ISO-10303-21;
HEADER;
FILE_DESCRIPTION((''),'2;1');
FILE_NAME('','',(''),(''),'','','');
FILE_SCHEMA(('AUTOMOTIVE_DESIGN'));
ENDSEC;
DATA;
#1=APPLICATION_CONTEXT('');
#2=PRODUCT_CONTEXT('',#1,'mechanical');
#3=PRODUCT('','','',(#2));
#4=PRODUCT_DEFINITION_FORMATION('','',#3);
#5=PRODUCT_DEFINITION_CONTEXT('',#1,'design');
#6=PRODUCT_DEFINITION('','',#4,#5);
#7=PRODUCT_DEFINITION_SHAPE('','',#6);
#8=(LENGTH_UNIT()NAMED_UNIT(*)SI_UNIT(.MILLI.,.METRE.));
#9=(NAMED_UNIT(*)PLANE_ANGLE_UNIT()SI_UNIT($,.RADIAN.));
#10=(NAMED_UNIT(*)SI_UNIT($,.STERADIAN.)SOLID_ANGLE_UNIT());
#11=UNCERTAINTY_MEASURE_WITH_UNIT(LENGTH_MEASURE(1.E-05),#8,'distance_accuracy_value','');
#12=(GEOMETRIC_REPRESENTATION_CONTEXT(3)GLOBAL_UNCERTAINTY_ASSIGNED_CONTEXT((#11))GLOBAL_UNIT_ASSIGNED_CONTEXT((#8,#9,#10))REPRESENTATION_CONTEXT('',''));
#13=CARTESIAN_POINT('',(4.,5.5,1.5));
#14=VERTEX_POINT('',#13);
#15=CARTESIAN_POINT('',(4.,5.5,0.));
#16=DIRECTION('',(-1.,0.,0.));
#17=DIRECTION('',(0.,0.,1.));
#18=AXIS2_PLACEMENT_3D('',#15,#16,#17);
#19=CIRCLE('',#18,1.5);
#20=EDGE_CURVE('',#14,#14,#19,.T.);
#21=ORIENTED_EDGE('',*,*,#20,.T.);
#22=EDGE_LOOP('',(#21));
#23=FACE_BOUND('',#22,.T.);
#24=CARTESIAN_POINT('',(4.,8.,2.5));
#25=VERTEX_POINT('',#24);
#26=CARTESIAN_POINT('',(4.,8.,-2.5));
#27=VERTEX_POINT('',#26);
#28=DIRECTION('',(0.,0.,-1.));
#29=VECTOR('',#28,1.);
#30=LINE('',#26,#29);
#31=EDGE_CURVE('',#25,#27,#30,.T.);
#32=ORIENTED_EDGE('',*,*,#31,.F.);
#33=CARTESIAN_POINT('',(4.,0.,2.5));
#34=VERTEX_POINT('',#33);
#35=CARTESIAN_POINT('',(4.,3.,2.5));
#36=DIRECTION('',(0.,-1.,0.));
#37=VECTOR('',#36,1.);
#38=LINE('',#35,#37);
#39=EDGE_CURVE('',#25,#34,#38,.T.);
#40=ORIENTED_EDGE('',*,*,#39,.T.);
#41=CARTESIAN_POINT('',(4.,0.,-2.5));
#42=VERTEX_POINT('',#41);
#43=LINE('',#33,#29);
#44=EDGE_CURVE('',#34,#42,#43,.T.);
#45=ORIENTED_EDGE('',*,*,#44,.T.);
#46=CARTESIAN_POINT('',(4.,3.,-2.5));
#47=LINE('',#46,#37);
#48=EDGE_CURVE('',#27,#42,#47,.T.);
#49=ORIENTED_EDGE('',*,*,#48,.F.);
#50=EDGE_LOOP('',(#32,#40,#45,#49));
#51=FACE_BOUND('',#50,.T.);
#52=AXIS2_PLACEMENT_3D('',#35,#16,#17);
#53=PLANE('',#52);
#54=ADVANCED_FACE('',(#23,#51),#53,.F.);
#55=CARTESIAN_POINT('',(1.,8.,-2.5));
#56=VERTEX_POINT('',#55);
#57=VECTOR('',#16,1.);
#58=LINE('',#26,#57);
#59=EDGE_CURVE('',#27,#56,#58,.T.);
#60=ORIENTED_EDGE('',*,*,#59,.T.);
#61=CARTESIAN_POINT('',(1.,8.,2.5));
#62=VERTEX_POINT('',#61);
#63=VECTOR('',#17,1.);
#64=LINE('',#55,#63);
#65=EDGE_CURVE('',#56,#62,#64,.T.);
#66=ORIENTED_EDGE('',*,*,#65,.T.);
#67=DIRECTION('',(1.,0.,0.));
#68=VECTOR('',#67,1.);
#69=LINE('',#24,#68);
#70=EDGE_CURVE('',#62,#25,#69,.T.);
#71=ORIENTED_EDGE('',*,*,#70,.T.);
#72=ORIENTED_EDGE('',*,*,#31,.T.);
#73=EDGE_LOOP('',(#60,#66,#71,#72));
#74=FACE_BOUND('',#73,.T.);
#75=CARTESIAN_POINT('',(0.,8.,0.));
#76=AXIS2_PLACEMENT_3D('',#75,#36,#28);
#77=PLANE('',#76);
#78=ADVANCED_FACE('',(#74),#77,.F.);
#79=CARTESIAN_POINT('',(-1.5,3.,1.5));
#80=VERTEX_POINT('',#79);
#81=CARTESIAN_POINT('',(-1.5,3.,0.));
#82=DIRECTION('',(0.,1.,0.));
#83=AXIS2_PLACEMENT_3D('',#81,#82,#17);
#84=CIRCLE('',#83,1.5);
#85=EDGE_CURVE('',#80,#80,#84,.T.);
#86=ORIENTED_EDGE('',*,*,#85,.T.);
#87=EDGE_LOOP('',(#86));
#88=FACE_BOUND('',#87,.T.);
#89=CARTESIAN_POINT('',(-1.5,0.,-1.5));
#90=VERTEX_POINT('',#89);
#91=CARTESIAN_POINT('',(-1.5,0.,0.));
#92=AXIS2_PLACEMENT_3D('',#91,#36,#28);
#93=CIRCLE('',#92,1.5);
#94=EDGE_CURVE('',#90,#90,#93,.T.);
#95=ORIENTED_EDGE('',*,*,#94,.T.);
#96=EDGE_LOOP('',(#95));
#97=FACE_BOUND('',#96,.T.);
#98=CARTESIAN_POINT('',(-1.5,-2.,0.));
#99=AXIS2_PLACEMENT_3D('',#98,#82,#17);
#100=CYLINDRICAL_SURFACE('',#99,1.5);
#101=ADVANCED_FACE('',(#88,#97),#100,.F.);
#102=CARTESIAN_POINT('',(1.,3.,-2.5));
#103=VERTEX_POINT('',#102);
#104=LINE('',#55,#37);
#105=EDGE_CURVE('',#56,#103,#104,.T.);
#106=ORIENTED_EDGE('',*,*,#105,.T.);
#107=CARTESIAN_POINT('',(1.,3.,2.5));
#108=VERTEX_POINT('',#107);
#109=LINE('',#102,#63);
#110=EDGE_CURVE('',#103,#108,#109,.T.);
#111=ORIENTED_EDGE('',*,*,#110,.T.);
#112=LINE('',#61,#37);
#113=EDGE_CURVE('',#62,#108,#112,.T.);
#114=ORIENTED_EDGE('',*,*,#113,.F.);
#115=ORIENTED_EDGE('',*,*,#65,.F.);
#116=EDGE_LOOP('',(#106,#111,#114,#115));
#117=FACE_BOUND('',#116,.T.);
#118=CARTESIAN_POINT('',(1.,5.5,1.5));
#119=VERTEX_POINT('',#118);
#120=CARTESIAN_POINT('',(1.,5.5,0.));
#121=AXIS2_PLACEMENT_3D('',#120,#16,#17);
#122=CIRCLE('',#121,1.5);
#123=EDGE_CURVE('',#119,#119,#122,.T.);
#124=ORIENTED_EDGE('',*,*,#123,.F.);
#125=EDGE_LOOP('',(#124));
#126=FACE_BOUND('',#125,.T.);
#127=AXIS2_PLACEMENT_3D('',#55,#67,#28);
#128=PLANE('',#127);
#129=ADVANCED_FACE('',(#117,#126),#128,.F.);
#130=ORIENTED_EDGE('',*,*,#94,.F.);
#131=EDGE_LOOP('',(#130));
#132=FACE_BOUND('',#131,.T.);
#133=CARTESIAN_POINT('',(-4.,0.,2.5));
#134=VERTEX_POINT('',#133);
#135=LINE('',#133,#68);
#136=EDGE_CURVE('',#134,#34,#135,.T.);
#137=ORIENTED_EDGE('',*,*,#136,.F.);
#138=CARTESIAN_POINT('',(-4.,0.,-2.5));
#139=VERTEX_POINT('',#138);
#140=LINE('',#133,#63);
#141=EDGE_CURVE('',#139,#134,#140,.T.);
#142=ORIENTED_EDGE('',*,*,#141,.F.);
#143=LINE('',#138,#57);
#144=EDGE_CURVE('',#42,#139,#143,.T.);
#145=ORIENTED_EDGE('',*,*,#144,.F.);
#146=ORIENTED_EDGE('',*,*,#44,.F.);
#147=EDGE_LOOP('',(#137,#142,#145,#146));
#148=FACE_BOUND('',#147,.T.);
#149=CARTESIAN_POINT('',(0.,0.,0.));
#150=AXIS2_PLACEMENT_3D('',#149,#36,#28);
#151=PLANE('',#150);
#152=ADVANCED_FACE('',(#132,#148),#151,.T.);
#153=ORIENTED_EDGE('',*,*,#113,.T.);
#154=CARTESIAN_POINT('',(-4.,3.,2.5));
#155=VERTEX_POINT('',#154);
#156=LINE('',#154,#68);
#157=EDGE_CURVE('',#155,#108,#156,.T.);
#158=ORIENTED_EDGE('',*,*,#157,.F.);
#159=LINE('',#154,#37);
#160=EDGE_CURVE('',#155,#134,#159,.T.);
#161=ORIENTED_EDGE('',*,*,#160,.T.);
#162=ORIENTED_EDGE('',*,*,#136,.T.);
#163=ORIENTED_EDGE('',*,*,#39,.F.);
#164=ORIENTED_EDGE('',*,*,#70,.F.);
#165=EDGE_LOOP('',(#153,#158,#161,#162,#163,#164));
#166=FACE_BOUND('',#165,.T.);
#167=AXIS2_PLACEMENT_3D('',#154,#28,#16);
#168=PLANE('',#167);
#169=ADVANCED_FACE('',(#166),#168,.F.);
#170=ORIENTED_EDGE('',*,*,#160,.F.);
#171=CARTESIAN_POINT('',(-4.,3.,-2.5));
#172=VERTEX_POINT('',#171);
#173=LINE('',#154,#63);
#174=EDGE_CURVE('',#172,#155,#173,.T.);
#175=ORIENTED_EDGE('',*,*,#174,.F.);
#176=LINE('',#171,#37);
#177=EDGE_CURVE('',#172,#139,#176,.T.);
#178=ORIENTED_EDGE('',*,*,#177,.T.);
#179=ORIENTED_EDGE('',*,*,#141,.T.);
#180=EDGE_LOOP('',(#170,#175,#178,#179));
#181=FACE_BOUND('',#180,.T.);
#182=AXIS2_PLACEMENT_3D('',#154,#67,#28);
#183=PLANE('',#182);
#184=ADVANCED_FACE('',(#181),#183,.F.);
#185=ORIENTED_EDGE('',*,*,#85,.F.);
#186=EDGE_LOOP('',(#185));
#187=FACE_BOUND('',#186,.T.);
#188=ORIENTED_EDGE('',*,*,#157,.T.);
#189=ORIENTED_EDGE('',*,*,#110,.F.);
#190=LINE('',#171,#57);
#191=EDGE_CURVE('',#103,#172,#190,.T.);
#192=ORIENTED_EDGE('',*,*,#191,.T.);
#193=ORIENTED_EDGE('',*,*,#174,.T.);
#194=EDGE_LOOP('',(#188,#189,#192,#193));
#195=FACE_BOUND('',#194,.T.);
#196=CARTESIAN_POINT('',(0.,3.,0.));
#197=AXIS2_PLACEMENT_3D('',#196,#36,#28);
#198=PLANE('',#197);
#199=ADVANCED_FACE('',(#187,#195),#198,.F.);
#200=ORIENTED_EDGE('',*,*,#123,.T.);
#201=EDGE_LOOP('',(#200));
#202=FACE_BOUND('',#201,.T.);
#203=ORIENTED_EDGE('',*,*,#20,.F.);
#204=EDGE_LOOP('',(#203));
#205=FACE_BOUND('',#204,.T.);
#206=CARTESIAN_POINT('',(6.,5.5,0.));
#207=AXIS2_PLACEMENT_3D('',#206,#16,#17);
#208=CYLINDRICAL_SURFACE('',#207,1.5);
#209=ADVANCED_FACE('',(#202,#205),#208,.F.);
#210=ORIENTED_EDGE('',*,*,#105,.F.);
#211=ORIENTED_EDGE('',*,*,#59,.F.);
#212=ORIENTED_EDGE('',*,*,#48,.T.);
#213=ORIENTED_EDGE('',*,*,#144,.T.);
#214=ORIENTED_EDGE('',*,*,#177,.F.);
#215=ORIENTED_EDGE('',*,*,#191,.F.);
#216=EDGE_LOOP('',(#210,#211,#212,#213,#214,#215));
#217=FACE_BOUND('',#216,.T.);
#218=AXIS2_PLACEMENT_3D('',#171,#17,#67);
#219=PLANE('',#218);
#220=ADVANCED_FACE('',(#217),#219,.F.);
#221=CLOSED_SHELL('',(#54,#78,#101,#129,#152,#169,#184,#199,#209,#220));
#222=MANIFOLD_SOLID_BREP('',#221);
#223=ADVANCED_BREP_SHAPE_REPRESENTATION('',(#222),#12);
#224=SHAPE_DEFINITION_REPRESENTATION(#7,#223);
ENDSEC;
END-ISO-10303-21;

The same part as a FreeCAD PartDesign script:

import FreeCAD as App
import Part
import Sketcher

V = App.Vector
Q = App.Units.Quantity

doc = App.newDocument("Part")
body = doc.addObject("PartDesign::Body", "Body")

# Sketch on XZ plane
sketch1 = doc.addObject("Sketcher::SketchObject", "Sketch")
body.addObject(sketch1)
sketch1.AttachmentSupport = (doc.XZ_Plane, [""])
sketch1.MapMode = "FlatFace"
sketch1.addGeometry(Part.LineSegment(V(-4, -2, 0), V(-4, 2, 0)), False)
sketch1.addGeometry(Part.LineSegment(V(-4, 2, 0), V(4, 2, 0)), False)
sketch1.addGeometry(Part.LineSegment(V(4, 2, 0), V(4, -2, 0)), False)
sketch1.addGeometry(Part.LineSegment(V(4, -2, 0), V(-4, -2, 0)), False)
sketch1.addConstraint(Sketcher.Constraint("Coincident", 0, 2, 1, 1))
sketch1.addConstraint(Sketcher.Constraint("Coincident", 1, 2, 2, 1))
sketch1.addConstraint(Sketcher.Constraint("Coincident", 2, 2, 3, 1))
sketch1.addConstraint(Sketcher.Constraint("Coincident", 3, 2, 0, 1))
sketch1.addConstraint(Sketcher.Constraint("Vertical", 0))
sketch1.addConstraint(Sketcher.Constraint("Horizontal", 1))
sketch1.addConstraint(Sketcher.Constraint("Vertical", 2))
sketch1.addConstraint(Sketcher.Constraint("Horizontal", 3))
sketch1.addConstraint(Sketcher.Constraint("Symmetric", 0, 2, 2, 2, -1, 1))
sketch1.addConstraint(Sketcher.Constraint("DistanceX", 1, 1, 1, 2, Q("8 mm")))
sketch1.addConstraint(Sketcher.Constraint("DistanceY", 0, 1, 0, 2, Q("5 mm")))
pad1 = doc.addObject("PartDesign::Pad", "Pad")
body.addObject(pad1)
pad1.Profile = sketch1
pad1.Length = 3
pad1.Reversed = True

# Sketch on XZ plane
sketch2 = doc.addObject("Sketcher::SketchObject", "Sketch001")
body.addObject(sketch2)
sketch2.AttachmentSupport = (doc.XZ_Plane, [""])
sketch2.MapMode = "FlatFace"
sketch2.AttachmentOffset = App.Placement(V(0, 0, -3), App.Rotation())
sketch2.addGeometry(Part.LineSegment(V(1, -2.5, 0), V(1, 2.5, 0)), False)
sketch2.addGeometry(Part.LineSegment(V(1, 2.5, 0), V(4, 2.5, 0)), False)
sketch2.addGeometry(Part.LineSegment(V(4, 2.5, 0), V(4, -2.5, 0)), False)
sketch2.addGeometry(Part.LineSegment(V(4, -2.5, 0), V(1, -2.5, 0)), False)
sketch2.addConstraint(Sketcher.Constraint("Coincident", 0, 2, 1, 1))
sketch2.addConstraint(Sketcher.Constraint("Coincident", 1, 2, 2, 1))
sketch2.addConstraint(Sketcher.Constraint("Coincident", 2, 2, 3, 1))
sketch2.addConstraint(Sketcher.Constraint("Coincident", 3, 2, 0, 1))
sketch2.addConstraint(Sketcher.Constraint("Vertical", 0))
sketch2.addConstraint(Sketcher.Constraint("Horizontal", 1))
sketch2.addConstraint(Sketcher.Constraint("Vertical", 2))
sketch2.addConstraint(Sketcher.Constraint("Horizontal", 3))
sketch2.addConstraint(Sketcher.Constraint("DistanceX", 1, 1, 1, 2, Q("3 mm")))
sketch2.addConstraint(Sketcher.Constraint("DistanceY", 0, 1, 0, 2, Q("5 mm")))
sketch2.addConstraint(Sketcher.Constraint("DistanceX", -1, 1, 0, 2, Q("1 mm")))
sketch2.addConstraint(Sketcher.Constraint("DistanceY", -1, 1, 0, 2, Q("2.5 mm")))
pad2 = doc.addObject("PartDesign::Pad", "Pad001")
body.addObject(pad2)
pad2.Profile = sketch2
pad2.Length = 5
pad2.Reversed = True

# Sketch on XZ plane
sketch3 = doc.addObject("Sketcher::SketchObject", "Sketch002")
body.addObject(sketch3)
sketch3.AttachmentSupport = (doc.XZ_Plane, [""])
sketch3.MapMode = "FlatFace"
sketch3.AttachmentOffset = App.Placement(V(0, 0, -3), App.Rotation())
sketch3.addGeometry(Part.Circle(V(-1.5, 0, 0), V(0, 0, 1), 1.5), False)
sketch3.addConstraint(Sketcher.Constraint("PointOnObject", 0, 3, -1))
sketch3.addConstraint(Sketcher.Constraint("Diameter", 0, Q("3 mm")))
sketch3.addConstraint(Sketcher.Constraint("DistanceX", 0, 3, -1, 1, Q("1.5 mm")))
pocket1 = doc.addObject("PartDesign::Pocket", "Pocket")
body.addObject(pocket1)
pocket1.Profile = sketch3
pocket1.Length = 5
pocket1.Reversed = True

# Sketch on YZ plane
sketch4 = doc.addObject("Sketcher::SketchObject", "Sketch003")
body.addObject(sketch4)
sketch4.AttachmentSupport = (doc.YZ_Plane, [""])
sketch4.MapMode = "FlatFace"
sketch4.AttachmentOffset = App.Placement(V(0, 0, 1), App.Rotation())
sketch4.addGeometry(Part.Circle(V(5.5, 0, 0), V(0, 0, 1), 1.5), False)
sketch4.addConstraint(Sketcher.Constraint("PointOnObject", 0, 3, -1))
sketch4.addConstraint(Sketcher.Constraint("Diameter", 0, Q("3 mm")))
sketch4.addConstraint(Sketcher.Constraint("DistanceX", -1, 1, 0, 3, Q("5.5 mm")))
pocket2 = doc.addObject("PartDesign::Pocket", "Pocket001")
body.addObject(pocket2)
pocket2.Profile = sketch4
pocket2.Length = 5
pocket2.Reversed = True

doc.recompute()
